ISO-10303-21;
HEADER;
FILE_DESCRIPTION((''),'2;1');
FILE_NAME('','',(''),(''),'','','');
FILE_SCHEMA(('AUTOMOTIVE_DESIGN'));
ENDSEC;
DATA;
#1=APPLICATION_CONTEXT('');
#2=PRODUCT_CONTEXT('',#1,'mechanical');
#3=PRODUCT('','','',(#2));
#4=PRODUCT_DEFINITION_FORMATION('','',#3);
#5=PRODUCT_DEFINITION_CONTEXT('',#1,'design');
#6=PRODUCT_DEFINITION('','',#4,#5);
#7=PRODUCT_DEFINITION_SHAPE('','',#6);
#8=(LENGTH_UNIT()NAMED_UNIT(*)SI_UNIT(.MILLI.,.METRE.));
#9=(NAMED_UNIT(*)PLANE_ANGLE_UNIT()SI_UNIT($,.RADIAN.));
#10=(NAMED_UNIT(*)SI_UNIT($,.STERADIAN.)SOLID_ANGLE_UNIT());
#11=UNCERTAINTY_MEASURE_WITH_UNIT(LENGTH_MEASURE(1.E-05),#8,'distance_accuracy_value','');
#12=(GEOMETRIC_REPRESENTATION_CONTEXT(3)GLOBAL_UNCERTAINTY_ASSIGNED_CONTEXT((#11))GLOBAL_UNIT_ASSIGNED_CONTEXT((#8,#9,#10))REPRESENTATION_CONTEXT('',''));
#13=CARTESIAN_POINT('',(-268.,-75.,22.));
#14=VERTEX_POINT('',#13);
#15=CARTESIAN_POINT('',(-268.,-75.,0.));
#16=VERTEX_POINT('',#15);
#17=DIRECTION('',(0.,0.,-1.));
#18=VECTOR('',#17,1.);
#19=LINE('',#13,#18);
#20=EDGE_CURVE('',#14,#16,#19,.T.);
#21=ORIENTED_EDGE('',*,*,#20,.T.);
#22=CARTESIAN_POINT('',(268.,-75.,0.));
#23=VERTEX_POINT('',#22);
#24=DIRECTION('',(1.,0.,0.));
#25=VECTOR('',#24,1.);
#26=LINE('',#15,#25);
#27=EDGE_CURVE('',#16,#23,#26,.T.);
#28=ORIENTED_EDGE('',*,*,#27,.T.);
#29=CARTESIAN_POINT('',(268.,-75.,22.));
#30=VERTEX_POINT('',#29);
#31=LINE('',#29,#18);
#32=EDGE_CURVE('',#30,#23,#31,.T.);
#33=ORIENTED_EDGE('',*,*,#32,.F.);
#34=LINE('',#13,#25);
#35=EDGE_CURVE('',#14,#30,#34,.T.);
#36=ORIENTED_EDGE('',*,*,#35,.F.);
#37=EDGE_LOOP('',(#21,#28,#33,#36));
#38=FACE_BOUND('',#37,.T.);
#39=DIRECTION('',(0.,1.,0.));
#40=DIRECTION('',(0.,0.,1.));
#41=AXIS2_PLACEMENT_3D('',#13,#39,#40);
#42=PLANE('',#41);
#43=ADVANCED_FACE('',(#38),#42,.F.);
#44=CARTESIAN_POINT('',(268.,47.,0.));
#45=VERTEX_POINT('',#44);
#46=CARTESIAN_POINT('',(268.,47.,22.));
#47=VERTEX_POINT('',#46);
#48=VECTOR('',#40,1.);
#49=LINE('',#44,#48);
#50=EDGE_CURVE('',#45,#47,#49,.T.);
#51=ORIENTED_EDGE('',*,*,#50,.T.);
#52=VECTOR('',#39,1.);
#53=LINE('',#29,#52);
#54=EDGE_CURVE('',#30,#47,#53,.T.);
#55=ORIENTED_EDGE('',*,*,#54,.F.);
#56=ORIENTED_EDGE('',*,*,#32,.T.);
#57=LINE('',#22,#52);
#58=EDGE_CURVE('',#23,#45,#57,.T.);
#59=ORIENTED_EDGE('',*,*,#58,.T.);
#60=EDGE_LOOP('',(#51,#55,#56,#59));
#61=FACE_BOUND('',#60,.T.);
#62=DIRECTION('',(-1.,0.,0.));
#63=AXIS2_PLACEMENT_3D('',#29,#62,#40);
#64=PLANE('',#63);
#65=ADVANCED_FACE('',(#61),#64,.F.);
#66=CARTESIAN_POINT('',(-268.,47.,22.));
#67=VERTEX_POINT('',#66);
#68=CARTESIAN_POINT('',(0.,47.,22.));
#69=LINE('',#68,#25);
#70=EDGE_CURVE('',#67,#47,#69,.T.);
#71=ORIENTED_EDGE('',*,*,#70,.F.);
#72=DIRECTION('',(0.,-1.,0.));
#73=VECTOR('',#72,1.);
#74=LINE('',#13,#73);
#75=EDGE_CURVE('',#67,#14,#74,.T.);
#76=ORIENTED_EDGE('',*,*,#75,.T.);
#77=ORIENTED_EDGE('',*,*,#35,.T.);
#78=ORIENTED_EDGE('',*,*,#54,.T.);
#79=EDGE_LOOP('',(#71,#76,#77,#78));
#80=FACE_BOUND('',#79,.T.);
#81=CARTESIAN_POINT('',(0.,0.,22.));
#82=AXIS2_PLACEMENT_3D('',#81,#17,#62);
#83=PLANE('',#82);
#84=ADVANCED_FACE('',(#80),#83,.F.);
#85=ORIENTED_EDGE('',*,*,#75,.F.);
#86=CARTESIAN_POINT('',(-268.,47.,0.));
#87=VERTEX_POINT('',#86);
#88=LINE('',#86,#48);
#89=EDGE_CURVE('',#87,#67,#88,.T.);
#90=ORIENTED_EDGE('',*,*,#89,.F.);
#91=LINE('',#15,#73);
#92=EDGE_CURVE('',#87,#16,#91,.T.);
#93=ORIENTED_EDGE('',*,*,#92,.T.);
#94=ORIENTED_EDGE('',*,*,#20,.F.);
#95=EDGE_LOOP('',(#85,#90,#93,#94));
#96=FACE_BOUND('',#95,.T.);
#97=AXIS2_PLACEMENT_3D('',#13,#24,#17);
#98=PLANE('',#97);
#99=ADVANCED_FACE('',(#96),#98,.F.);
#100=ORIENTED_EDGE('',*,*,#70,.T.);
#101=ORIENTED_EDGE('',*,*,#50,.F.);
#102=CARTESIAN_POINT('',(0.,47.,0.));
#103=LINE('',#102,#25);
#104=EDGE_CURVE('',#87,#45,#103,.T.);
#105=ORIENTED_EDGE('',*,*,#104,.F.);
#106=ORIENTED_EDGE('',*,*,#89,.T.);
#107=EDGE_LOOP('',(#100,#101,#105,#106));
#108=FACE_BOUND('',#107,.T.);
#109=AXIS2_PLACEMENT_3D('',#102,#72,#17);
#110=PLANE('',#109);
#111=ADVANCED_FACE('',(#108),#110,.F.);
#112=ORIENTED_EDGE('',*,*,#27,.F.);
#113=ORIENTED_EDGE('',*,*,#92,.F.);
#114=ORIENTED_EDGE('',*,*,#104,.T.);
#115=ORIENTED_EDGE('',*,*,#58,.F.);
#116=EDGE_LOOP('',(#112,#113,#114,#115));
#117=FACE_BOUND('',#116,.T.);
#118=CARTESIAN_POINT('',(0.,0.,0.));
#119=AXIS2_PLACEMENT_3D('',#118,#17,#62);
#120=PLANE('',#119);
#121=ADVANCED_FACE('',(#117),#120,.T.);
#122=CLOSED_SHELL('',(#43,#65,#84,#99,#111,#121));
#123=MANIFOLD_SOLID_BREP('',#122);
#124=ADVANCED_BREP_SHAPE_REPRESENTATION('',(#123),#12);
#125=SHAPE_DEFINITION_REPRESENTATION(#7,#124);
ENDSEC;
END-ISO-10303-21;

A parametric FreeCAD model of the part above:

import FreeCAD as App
import Part
import Sketcher
from FreeCAD import Vector
Q = App.Units.Quantity

doc = App.newDocument("Part")
params = doc.addObject("Spreadsheet::Sheet", "Params")
for row, (alias, value) in enumerate([
    ("sketch1_width", "536 mm"),
    ("sketch1_height", "150 mm"),
    ("pad1_length", "22 mm"),
    ("sketch2_width", "536 mm"),
    ("sketch2_height", "28 mm"),
], start=1):
    params.set(f"A{row}", alias)
    params.set(f"B{row}", "=" + value)
    params.setAlias(f"B{row}", alias)

body = doc.addObject("PartDesign::Body", "Body")

sketch1 = body.newObject("Sketcher::SketchObject", "Sketch")
sketch1.AttachmentSupport = (doc.getObject("XY_Plane"), [""])
sketch1.MapMode = "FlatFace"
sketch1.addGeometry(Part.LineSegment(Vector(-268, 75, 0), Vector(-268, -75, 0)), False)
sketch1.addGeometry(Part.LineSegment(Vector(-268, -75, 0), Vector(268, -75, 0)), False)
sketch1.addGeometry(Part.LineSegment(Vector(268, -75, 0), Vector(268, 75, 0)), False)
sketch1.addGeometry(Part.LineSegment(Vector(268, 75, 0), Vector(-268, 75, 0)), False)
sketch1.addConstraint(Sketcher.Constraint("Coincident", 0, 2, 1, 1))
sketch1.addConstraint(Sketcher.Constraint("Coincident", 1, 2, 2, 1))
sketch1.addConstraint(Sketcher.Constraint("Coincident", 2, 2, 3, 1))
sketch1.addConstraint(Sketcher.Constraint("Coincident", 3, 2, 0, 1))
sketch1.addConstraint(Sketcher.Constraint("Vertical", 0))
sketch1.addConstraint(Sketcher.Constraint("Horizontal", 1))
sketch1.addConstraint(Sketcher.Constraint("Vertical", 2))
sketch1.addConstraint(Sketcher.Constraint("Horizontal", 3))
sketch1.addConstraint(Sketcher.Constraint("Symmetric", 0, 2, 2, 2, -1, 1))
sketch1.addConstraint(Sketcher.Constraint("DistanceX", 1, 1, 1, 2, Q("536 mm")))
sketch1.addConstraint(Sketcher.Constraint("DistanceY", 0, 2, 0, 1, Q("150 mm")))
sketch1.setExpression("Constraints[9]", "Params.sketch1_width")
sketch1.setExpression("Constraints[10]", "Params.sketch1_height")
pad1 = body.newObject("PartDesign::Pad", "Pad")
pad1.Profile = sketch1
pad1.setExpression("Length", "Params.pad1_length")

sketch2 = body.newObject("Sketcher::SketchObject", "Sketch001")
sketch2.AttachmentSupport = (doc.getObject("XY_Plane"), [""])
sketch2.MapMode = "FlatFace"
sketch2.AttachmentOffset = App.Placement(Vector(0, 0, 22), App.Rotation())
sketch2.addGeometry(Part.LineSegment(Vector(-268, 75, 0), Vector(-268, 47, 0)), False)
sketch2.addGeometry(Part.LineSegment(Vector(-268, 47, 0), Vector(268, 47, 0)), False)
sketch2.addGeometry(Part.LineSegment(Vector(268, 47, 0), Vector(268, 75, 0)), False)
sketch2.addGeometry(Part.LineSegment(Vector(268, 75, 0), Vector(-268, 75, 0)), False)
sketch2.addConstraint(Sketcher.Constraint("Coincident", 0, 2, 1, 1))
sketch2.addConstraint(Sketcher.Constraint("Coincident", 1, 2, 2, 1))
sketch2.addConstraint(Sketcher.Constraint("Coincident", 2, 2, 3, 1))
sketch2.addConstraint(Sketcher.Constraint("Coincident", 3, 2, 0, 1))
sketch2.addConstraint(Sketcher.Constraint("Vertical", 0))
sketch2.addConstraint(Sketcher.Constraint("Horizontal", 1))
sketch2.addConstraint(Sketcher.Constraint("Vertical", 2))
sketch2.addConstraint(Sketcher.Constraint("Horizontal", 3))
sketch2.addConstraint(Sketcher.Constraint("DistanceX", 1, 1, 1, 2, Q("536 mm")))
sketch2.addConstraint(Sketcher.Constraint("DistanceY", 0, 2, 0, 1, Q("28 mm")))
sketch2.addConstraint(Sketcher.Constraint("DistanceX", 0, 2, -1, 1, Q("268 mm")))
sketch2.addConstraint(Sketcher.Constraint("DistanceY", -1, 1, 0, 2, Q("47 mm")))
sketch2.setExpression("Constraints[8]", "Params.sketch2_width")
sketch2.setExpression("Constraints[9]", "Params.sketch2_height")
pocket1 = body.newObject("PartDesign::Pocket", "Pocket")
pocket1.Profile = sketch2
pocket1.Type = "ThroughAll"

doc.recompute()
